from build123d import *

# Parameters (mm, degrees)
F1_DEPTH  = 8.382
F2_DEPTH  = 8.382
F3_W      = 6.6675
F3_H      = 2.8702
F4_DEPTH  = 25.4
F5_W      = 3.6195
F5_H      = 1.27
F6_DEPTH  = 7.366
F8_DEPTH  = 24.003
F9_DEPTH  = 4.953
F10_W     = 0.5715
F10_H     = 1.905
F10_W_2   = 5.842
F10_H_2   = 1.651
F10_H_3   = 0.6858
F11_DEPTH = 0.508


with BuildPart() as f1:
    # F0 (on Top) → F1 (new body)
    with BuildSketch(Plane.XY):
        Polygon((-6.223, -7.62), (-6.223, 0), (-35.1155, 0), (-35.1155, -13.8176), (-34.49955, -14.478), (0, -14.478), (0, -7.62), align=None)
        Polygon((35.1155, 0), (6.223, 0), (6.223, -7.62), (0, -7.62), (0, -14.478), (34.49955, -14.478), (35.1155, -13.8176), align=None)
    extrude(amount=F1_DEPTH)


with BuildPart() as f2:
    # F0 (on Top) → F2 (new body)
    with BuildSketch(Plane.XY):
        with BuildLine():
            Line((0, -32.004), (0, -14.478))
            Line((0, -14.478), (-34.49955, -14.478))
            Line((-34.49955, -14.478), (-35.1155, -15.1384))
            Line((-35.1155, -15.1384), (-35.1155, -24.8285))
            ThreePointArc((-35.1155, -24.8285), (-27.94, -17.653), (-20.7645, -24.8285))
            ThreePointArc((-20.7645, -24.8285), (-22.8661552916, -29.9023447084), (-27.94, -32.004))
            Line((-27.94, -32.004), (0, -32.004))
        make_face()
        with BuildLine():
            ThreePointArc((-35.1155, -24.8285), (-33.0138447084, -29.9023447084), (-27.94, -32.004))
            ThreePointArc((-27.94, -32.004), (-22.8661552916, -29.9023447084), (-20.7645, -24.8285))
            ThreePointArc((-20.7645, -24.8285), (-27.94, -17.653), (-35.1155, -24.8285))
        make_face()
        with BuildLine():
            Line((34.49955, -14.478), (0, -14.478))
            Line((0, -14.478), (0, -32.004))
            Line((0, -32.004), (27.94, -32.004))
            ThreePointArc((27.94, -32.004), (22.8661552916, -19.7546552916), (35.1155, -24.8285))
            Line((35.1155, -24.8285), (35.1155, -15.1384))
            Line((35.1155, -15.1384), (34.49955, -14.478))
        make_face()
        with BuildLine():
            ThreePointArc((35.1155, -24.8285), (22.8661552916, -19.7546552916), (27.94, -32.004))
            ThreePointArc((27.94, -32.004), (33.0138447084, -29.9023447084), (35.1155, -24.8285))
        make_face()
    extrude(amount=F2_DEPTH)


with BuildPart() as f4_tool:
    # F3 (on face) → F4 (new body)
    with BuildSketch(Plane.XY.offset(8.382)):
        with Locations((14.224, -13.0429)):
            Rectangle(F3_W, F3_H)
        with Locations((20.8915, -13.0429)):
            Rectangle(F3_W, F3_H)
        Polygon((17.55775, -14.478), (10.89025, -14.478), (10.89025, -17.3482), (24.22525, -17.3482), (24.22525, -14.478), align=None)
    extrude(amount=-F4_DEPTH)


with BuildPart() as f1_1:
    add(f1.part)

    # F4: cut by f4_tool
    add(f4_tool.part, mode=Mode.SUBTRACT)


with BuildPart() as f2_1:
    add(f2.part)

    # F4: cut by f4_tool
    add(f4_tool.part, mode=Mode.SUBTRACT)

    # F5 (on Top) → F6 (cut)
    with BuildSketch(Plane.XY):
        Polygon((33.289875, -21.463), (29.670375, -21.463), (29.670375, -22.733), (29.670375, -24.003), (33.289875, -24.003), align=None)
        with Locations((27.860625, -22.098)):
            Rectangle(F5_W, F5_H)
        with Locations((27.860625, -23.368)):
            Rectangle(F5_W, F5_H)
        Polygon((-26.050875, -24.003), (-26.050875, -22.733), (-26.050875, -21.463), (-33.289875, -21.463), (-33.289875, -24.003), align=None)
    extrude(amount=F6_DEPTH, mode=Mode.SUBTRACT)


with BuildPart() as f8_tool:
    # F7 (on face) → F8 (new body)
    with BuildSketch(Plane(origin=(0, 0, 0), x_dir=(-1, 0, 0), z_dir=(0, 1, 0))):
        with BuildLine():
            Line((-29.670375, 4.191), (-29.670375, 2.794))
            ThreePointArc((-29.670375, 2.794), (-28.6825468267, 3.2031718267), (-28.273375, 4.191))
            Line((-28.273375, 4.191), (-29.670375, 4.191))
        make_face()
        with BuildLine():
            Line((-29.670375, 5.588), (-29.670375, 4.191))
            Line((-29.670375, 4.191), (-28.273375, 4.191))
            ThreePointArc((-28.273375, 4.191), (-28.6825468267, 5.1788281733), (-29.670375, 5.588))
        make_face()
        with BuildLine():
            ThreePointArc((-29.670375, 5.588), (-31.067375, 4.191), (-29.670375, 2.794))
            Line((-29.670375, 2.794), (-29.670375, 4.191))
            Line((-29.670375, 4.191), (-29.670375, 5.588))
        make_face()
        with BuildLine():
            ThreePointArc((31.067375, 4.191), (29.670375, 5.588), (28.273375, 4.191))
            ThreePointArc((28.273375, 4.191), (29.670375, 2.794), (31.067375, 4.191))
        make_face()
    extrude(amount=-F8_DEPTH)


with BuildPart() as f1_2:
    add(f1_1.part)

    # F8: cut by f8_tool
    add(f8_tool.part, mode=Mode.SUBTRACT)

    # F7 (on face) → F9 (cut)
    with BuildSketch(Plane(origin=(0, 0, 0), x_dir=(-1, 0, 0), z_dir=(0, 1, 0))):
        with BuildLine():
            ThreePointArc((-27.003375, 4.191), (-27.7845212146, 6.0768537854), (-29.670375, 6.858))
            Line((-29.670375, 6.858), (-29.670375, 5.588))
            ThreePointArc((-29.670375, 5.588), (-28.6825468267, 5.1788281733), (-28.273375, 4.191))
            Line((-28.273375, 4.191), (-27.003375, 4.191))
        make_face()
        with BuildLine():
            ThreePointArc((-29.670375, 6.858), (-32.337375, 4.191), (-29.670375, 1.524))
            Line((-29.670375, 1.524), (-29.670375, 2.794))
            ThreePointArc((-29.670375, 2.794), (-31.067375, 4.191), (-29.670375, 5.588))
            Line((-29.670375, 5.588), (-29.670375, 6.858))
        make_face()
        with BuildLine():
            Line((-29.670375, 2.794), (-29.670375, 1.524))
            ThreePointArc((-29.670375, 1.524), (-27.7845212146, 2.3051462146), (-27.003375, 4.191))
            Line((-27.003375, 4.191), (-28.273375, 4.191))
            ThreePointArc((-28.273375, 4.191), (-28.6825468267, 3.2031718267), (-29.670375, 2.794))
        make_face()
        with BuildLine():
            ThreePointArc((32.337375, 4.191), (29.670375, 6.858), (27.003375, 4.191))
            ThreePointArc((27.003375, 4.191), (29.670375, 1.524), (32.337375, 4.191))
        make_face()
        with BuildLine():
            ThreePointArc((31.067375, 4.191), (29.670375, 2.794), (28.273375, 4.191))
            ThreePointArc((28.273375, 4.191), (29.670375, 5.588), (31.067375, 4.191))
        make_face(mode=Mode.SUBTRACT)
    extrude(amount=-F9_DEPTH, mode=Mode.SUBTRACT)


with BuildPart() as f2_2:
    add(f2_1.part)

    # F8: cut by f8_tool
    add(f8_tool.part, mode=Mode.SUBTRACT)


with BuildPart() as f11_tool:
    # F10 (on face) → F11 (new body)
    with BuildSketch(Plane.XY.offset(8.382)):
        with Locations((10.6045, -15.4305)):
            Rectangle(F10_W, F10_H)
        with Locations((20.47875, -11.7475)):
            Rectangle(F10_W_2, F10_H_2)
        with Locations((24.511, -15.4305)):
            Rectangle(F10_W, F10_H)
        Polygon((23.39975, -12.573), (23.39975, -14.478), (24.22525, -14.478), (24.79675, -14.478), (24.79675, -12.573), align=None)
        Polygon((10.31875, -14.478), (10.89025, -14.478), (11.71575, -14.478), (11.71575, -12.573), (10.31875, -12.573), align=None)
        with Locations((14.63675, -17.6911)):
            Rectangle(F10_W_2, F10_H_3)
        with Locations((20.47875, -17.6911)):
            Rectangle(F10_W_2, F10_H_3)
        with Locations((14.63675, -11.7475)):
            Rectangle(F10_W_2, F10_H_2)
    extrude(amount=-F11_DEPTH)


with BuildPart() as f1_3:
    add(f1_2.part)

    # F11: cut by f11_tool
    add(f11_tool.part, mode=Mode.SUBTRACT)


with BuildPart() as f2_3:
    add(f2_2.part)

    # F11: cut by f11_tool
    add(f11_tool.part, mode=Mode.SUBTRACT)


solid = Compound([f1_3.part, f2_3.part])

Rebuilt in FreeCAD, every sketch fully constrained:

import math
import FreeCAD as App
import Part
import Sketcher

V = App.Vector
Q = App.Units.Quantity

doc = App.newDocument("Part")
body = doc.addObject("PartDesign::Body", "Body")

sketch1 = body.newObject("Sketcher::SketchObject", "Sketch")
sketch1.AttachmentSupport = (doc.getObject("XY_Plane"), [""])
sketch1.MapMode = "FlatFace"
sketch1.addGeometry([
    Part.LineSegment(V(-6.223, -7.62, 0), V(-6.223, 0, 0)),
    Part.LineSegment(V(-6.223, 0, 0), V(-35.1155, 0, 0)),
    Part.LineSegment(V(-35.1155, 0, 0), V(-35.1155, -13.8176, 0)),
    Part.LineSegment(V(-35.1155, -13.8176, 0), V(-34.49955, -14.478, 0)),
    Part.LineSegment(V(-34.49955, -14.478, 0), V(34.49955, -14.478, 0)),
    Part.LineSegment(V(34.49955, -14.478, 0), V(35.1155, -13.8176, 0)),
    Part.LineSegment(V(35.1155, -13.8176, 0), V(35.1155, 0, 0)),
    Part.LineSegment(V(35.1155, 0, 0), V(6.223, 0, 0)),
    Part.LineSegment(V(6.223, 0, 0), V(6.223, -7.62, 0)),
    Part.LineSegment(V(6.223, -7.62, 0), V(-6.223, -7.62, 0)),
], False)
sketch1.addConstraint([
    Sketcher.Constraint("Coincident", 0, 2, 1, 1),
    Sketcher.Constraint("Coincident", 1, 2, 2, 1),
    Sketcher.Constraint("Coincident", 2, 2, 3, 1),
    Sketcher.Constraint("Coincident", 3, 2, 4, 1),
    Sketcher.Constraint("Coincident", 4, 2, 5, 1),
    Sketcher.Constraint("Coincident", 5, 2, 6, 1),
    Sketcher.Constraint("Coincident", 6, 2, 7, 1),
    Sketcher.Constraint("Coincident", 7, 2, 8, 1),
    Sketcher.Constraint("Coincident", 8, 2, 9, 1),
    Sketcher.Constraint("Coincident", 9, 2, 0, 1),
    Sketcher.Constraint("Vertical", 0),
    Sketcher.Constraint("Horizontal", 1),
    Sketcher.Constraint("Vertical", 2),
    Sketcher.Constraint("Horizontal", 4),
    Sketcher.Constraint("Vertical", 6),
    Sketcher.Constraint("Horizontal", 7),
    Sketcher.Constraint("Vertical", 8),
    Sketcher.Constraint("Horizontal", 9),
    Sketcher.Constraint("Symmetric", 1, 2, 6, 2, -1, 1),
    Sketcher.Constraint("Symmetric", 0, 2, 7, 2, -2),
    Sketcher.Constraint("Horizontal", 2, 2, 5, 2),
    Sketcher.Constraint("Equal", 3, 5),
    Sketcher.Constraint("DistanceY", 0, 1, 0, 2, Q("0.3 in")),
    Sketcher.Constraint("DistanceX", 9, 2, 9, 1, Q("0.49 in")),
    Sketcher.Constraint("DistanceY", 2, 2, 2, 1, Q("0.544 in")),
    Sketcher.Constraint("DistanceY", 3, 2, -1, 1, Q("0.57 in")),
    Sketcher.Constraint("DistanceX", 1, 2, 1, 1, Q("1.1375 in")),
    Sketcher.Constraint("DistanceX", 4, 1, 4, 2, Q("2.7165 in")),
])
pad1 = body.newObject("PartDesign::Pad", "Pad")
pad1.Profile = sketch1
pad1.Length = Q("0.33 in")
body2 = doc.addObject("PartDesign::Body", "Body001")

sketch2 = body2.newObject("Sketcher::SketchObject", "Sketch001")
sketch2.AttachmentSupport = (doc.getObject("XY_Plane001"), [""])
sketch2.MapMode = "FlatFace"
sketch2.addGeometry([
    Part.LineSegment(V(-34.49955, -14.478, 0), V(-35.1155, -15.1384, 0)),
    Part.LineSegment(V(-35.1155, -15.1384, 0), V(-35.1155, -24.8285, 0)),
    Part.ArcOfCircle(Part.Circle(V(-27.94, -24.8285, 0), V(0, 0, 1), 7.1755), math.radians(180), math.radians(270)),
    Part.LineSegment(V(-27.94, -32.004, 0), V(27.94, -32.004, 0)),
    Part.ArcOfCircle(Part.Circle(V(27.94, -24.8285, 0), V(0, 0, 1), 7.1755), math.radians(-90), math.radians(0)),
    Part.LineSegment(V(35.1155, -24.8285, 0), V(35.1155, -15.1384, 0)),
    Part.LineSegment(V(35.1155, -15.1384, 0), V(34.49955, -14.478, 0)),
    Part.LineSegment(V(34.49955, -14.478, 0), V(-34.49955, -14.478, 0)),
], False)
sketch2.addConstraint([
    Sketcher.Constraint("Coincident", 0, 2, 1, 1),
    Sketcher.Constraint("Tangent", 1, 2, 2, 1),
    Sketcher.Constraint("Tangent", 2, 2, 3, 1),
    Sketcher.Constraint("Tangent", 3, 2, 4, 1),
    Sketcher.Constraint("Tangent", 4, 2, 5, 1),
    Sketcher.Constraint("Coincident", 5, 2, 6, 1),
    Sketcher.Constraint("Coincident", 6, 2, 7, 1),
    Sketcher.Constraint("Coincident", 7, 2, 0, 1),
    Sketcher.Constraint("Vertical", 1),
    Sketcher.Constraint("Horizontal", 3),
    Sketcher.Constraint("Vertical", 5),
    Sketcher.Constraint("Horizontal", 7),
    Sketcher.Constraint("Equal", 2, 4),
    Sketcher.Constraint("Symmetric", 0, 2, 5, 2, -2),
    Sketcher.Constraint("Equal", 0, 6),
    Sketcher.Constraint("DistanceX", 3, 1, 3, 2, Q("2.2 in")),
    Sketcher.Constraint("Radius", 2, Q("0.2825 in")),
    Sketcher.Constraint("DistanceY", 2, 2, -1, 1, Q("1.26 in")),
    Sketcher.Constraint("DistanceY", 6, 2, -1, 1, Q("0.57 in")),
    Sketcher.Constraint("DistanceX", 7, 2, 7, 1, Q("2.7165 in")),
    Sketcher.Constraint("DistanceY", 1, 2, 1, 1, Q("0.3815 in")),
])
pad2 = body2.newObject("PartDesign::Pad", "Pad001")
pad2.Profile = sketch2
pad2.Length = Q("0.33 in")
body3 = doc.addObject("PartDesign::Body", "Body002")

sketch3 = body3.newObject("Sketcher::SketchObject", "Sketch002")
sketch3.AttachmentSupport = (doc.getObject("XY_Plane002"), [""])
sketch3.MapMode = "FlatFace"
sketch3.AttachmentOffset = App.Placement(V(0, 0, 0.33 * 25.4), App.Rotation())
sketch3.addGeometry([
    Part.LineSegment(V(10.89025, -11.6078, 0), V(10.89025, -17.3482, 0)),
    Part.LineSegment(V(10.89025, -17.3482, 0), V(24.22525, -17.3482, 0)),
    Part.LineSegment(V(24.22525, -17.3482, 0), V(24.22525, -11.6078, 0)),
    Part.LineSegment(V(24.22525, -11.6078, 0), V(10.89025, -11.6078, 0)),
], False)
sketch3.addConstraint([
    Sketcher.Constraint("Coincident", 0, 2, 1, 1),
    Sketcher.Constraint("Coincident", 1, 2, 2, 1),
    Sketcher.Constraint("Coincident", 2, 2, 3, 1),
    Sketcher.Constraint("Coincident", 3, 2, 0, 1),
    Sketcher.Constraint("Vertical", 0),
    Sketcher.Constraint("Horizontal", 1),
    Sketcher.Constraint("Vertical", 2),
    Sketcher.Constraint("Horizontal", 3),
    Sketcher.Constraint("DistanceX", 1, 1, 1, 2, Q("0.525 in")),
    Sketcher.Constraint("DistanceY", 0, 2, 0, 1, Q("0.226 in")),
    Sketcher.Constraint("DistanceY", 0, 2, -1, 1, Q("0.683 in")),
    Sketcher.Constraint("DistanceX", -1, 1, 0, 2, 10.89025),
])
pad3 = body3.newObject("PartDesign::Pad", "Pad002")
pad3.Profile = sketch3
pad3.Length = Q("1 in")
pad3.Reversed = True
doc.recompute()

body4 = doc.addObject("PartDesign::Body", "Body003")
body4.BaseFeature = body3
boolean = body.newObject("PartDesign::Boolean", "Boolean")
boolean.Type = "Cut"
boolean.addObjects([body4])
doc.recompute()

boolean2 = body2.newObject("PartDesign::Boolean", "Boolean001")
boolean2.Type = "Cut"
boolean2.addObjects([body3])

sketch4 = body2.newObject("Sketcher::SketchObject", "Sketch003")
sketch4.AttachmentSupport = (doc.getObject("XY_Plane001"), [""])
sketch4.MapMode = "FlatFace"
sketch4.addGeometry([
    Part.LineSegment(V(33.289875, -21.463, 0), V(26.050875, -21.463, 0)),
    Part.LineSegment(V(26.050875, -21.463, 0), V(26.050875, -24.003, 0)),
    Part.LineSegment(V(26.050875, -24.003, 0), V(33.289875, -24.003, 0)),
    Part.LineSegment(V(33.289875, -24.003, 0), V(33.289875, -21.463, 0)),
    Part.LineSegment(V(-26.050875, -24.003, 0), V(-26.050875, -21.463, 0)),
    Part.LineSegment(V(-26.050875, -21.463, 0), V(-33.289875, -21.463, 0)),
    Part.LineSegment(V(-33.289875, -21.463, 0), V(-33.289875, -24.003, 0)),
    Part.LineSegment(V(-33.289875, -24.003, 0), V(-26.050875, -24.003, 0)),
], False)
sketch4.addConstraint([
    Sketcher.Constraint("Coincident", 0, 2, 1, 1),
    Sketcher.Constraint("Coincident", 1, 2, 2, 1),
    Sketcher.Constraint("Coincident", 2, 2, 3, 1),
    Sketcher.Constraint("Coincident", 3, 2, 0, 1),
    Sketcher.Constraint("Coincident", 4, 2, 5, 1),
    Sketcher.Constraint("Coincident", 5, 2, 6, 1),
    Sketcher.Constraint("Coincident", 6, 2, 7, 1),
    Sketcher.Constraint("Coincident", 7, 2, 4, 1),
    Sketcher.Constraint("Horizontal", 0),
    Sketcher.Constraint("Vertical", 1),
    Sketcher.Constraint("Horizontal", 2),
    Sketcher.Constraint("Vertical", 3),
    Sketcher.Constraint("Vertical", 4),
    Sketcher.Constraint("Horizontal", 5),
    Sketcher.Constraint("Vertical", 6),
    Sketcher.Constraint("Horizontal", 7),
    Sketcher.Constraint("Symmetric", 0, 2, 4, 2, -2),
    Sketcher.Constraint("Symmetric", 2, 2, 6, 2, -2),
    Sketcher.Constraint("DistanceY", 1, 2, 1, 1, Q("0.1 in")),
    Sketcher.Constraint("DistanceX", 0, 2, 0, 1, Q("0.285 in")),
    Sketcher.Constraint("DistanceY", 0, 2, -1, 1, Q("0.845 in")),
    Sketcher.Constraint("DistanceX", 4, 2, 0, 2, 52.10175),
])
pocket1 = body2.newObject("PartDesign::Pocket", "Pocket")
pocket1.Profile = sketch4
pocket1.Length = Q("0.29 in")
pocket1.Reversed = True
body5 = doc.addObject("PartDesign::Body", "Body004")
body5.AllowCompound = True

sketch5 = body5.newObject("Sketcher::SketchObject", "Sketch004")
sketch5.AttachmentSupport = (doc.getObject("XZ_Plane004"), [""])
sketch5.MapMode = "FlatFace"
sketch5.addGeometry([
    Part.ArcOfCircle(Part.Circle(V(29.670375, 4.191, 0), V(0, 0, 1), 1.397), math.radians(180), math.radians(270)),
    Part.ArcOfCircle(Part.Circle(V(29.670375, 4.191, 0), V(0, 0, 1), 1.397), math.radians(90), math.radians(180)),
    Part.ArcOfCircle(Part.Circle(V(29.670375, 4.191, 0), V(0, 0, 1), 1.397), math.radians(-90), math.radians(90)),
    Part.Circle(V(-29.670375, 4.191, 0), V(0, 0, 1), 1.397),
], False)
sketch5.addConstraint([
    Sketcher.Constraint("Tangent", 0, 1, 1, 2),
    Sketcher.Constraint("Tangent", 1, 1, 2, 2),
    Sketcher.Constraint("Tangent", 2, 1, 0, 2),
    Sketcher.Constraint("Equal", 2, 3),
    Sketcher.Constraint("Symmetric", 0, 3, 3, 3, -2),
    Sketcher.Constraint("Horizontal", 3, 3, 0, 1),
    Sketcher.Constraint("Vertical", 2, 3, 1, 1),
    Sketcher.Constraint("Vertical", 1, 1, 2, 1),
    Sketcher.Constraint("Diameter", 3, Q("0.11 in")),
    Sketcher.Constraint("DistanceY", -1, 1, 1, 1, Q("0.22 in")),
    Sketcher.Constraint("DistanceX", 3, 3, 0, 1, Q("2.28125 in")),
])
pad4 = body5.newObject("PartDesign::Pad", "Pad003")
pad4.Profile = sketch5
pad4.Length = Q("0.945 in")
doc.recompute()

body6 = doc.addObject("PartDesign::Body", "Body005")
body6.BaseFeature = body5
boolean3 = body.newObject("PartDesign::Boolean", "Boolean002")
boolean3.Type = "Cut"
boolean3.addObjects([body6])
doc.recompute()

sketch6 = body.newObject("Sketcher::SketchObject", "Sketch005")
sketch6.AttachmentSupport = (doc.getObject("XZ_Plane"), [""])
sketch6.MapMode = "FlatFace"
sketch6.addGeometry([
    Part.ArcOfCircle(Part.Circle(V(29.670375, 4.191, 0), V(0, 0, 1), 2.667), math.radians(90), math.radians(180)),
    Part.ArcOfCircle(Part.Circle(V(29.670375, 4.191, 0), V(0, 0, 1), 2.667), math.radians(-90), math.radians(90)),
    Part.ArcOfCircle(Part.Circle(V(29.670375, 4.191, 0), V(0, 0, 1), 2.667), math.radians(180), math.radians(270)),
    Part.ArcOfCircle(Part.Circle(V(29.670375, 4.191, 0), V(0, 0, 1), 1.397), math.radians(-90), math.radians(90)),
    Part.ArcOfCircle(Part.Circle(V(29.670375, 4.191, 0), V(0, 0, 1), 1.397), math.radians(90), math.radians(180)),
    Part.ArcOfCircle(Part.Circle(V(29.670375, 4.191, 0), V(0, 0, 1), 1.397), math.radians(180), math.radians(270)),
    Part.Circle(V(-29.670375, 4.191, 0), V(0, 0, 1), 2.667),
    Part.Circle(V(-29.670375, 4.191, 0), V(0, 0, 1), 1.397),
], False)
sketch6.addConstraint([
    Sketcher.Constraint("Tangent", 0, 1, 1, 2),
    Sketcher.Constraint("Tangent", 1, 1, 2, 2),
    Sketcher.Constraint("Tangent", 2, 1, 0, 2),
    Sketcher.Constraint("Tangent", 3, 2, 4, 1),
    Sketcher.Constraint("Tangent", 4, 2, 5, 1),
    Sketcher.Constraint("Tangent", 5, 2, 3, 1),
    Sketcher.Constraint("Coincident", 3, 3, 0, 3),
    Sketcher.Constraint("Coincident", 7, 3, 6, 3),
    Sketcher.Constraint("Equal", 2, 6),
    Sketcher.Constraint("Equal", 5, 7),
    Sketcher.Constraint("Symmetric", 0, 3, 6, 3, -2),
    Sketcher.Constraint("Horizontal", 7, 3, 2, 1),
    Sketcher.Constraint("Horizontal", 2, 1, 4, 2),
    Sketcher.Constraint("Vertical", 5, 3, 0, 1),
    Sketcher.Constraint("Vertical", 0, 1, 1, 1),
    Sketcher.Constraint("Vertical", 1, 1, 3, 2),
    Sketcher.Constraint("Vertical", 3, 2, 5, 2),
    Sketcher.Constraint("Diameter", 6, Q("0.21 in")),
    Sketcher.Constraint("Diameter", 7, Q("0.11 in")),
    Sketcher.Constraint("DistanceY", -1, 1, 0, 1, Q("0.27 in")),
    Sketcher.Constraint("DistanceX", 6, 3, 0, 3, 59.34075),
])
pocket2 = body.newObject("PartDesign::Pocket", "Pocket001")
pocket2.Profile = sketch6
pocket2.Length = Q("0.195 in")
pocket2.Reversed = True
doc.recompute()

boolean4 = body2.newObject("PartDesign::Boolean", "Boolean003")
boolean4.Type = "Cut"
boolean4.addObjects([body5])
body7 = doc.addObject("PartDesign::Body", "Body006")
body7.AllowCompound = True

sketch7 = body7.newObject("Sketcher::SketchObject", "Sketch006")
sketch7.AttachmentSupport = (doc.getObject("XY_Plane006"), [""])
sketch7.MapMode = "FlatFace"
sketch7.AttachmentOffset = App.Placement(V(0, 0, 0.33 * 25.4), App.Rotation())
sketch7.addGeometry([
    Part.LineSegment(V(10.31875, -16.383, 0), V(10.89025, -16.383, 0)),
    Part.LineSegment(V(10.89025, -16.383, 0), V(10.89025, -14.478, 0)),
    Part.LineSegment(V(10.89025, -14.478, 0), V(11.71575, -14.478, 0)),
    Part.LineSegment(V(11.71575, -14.478, 0), V(11.71575, -12.573, 0)),
    Part.LineSegment(V(11.71575, -12.573, 0), V(10.31875, -12.573, 0)),
    Part.LineSegment(V(10.31875, -12.573, 0), V(10.31875, -16.383, 0)),
    Part.LineSegment(V(23.39975, -12.573, 0), V(23.39975, -10.922, 0)),
    Part.LineSegment(V(23.39975, -10.922, 0), V(11.71575, -10.922, 0)),
    Part.LineSegment(V(11.71575, -10.922, 0), V(11.71575, -12.573, 0)),
    Part.LineSegment(V(11.71575, -12.573, 0), V(23.39975, -12.573, 0)),
    Part.LineSegment(V(24.22525, -14.478, 0), V(24.22525, -16.383, 0)),
    Part.LineSegment(V(24.22525, -16.383, 0), V(24.79675, -16.383, 0)),
    Part.LineSegment(V(24.79675, -16.383, 0), V(24.79675, -12.573, 0)),
    Part.LineSegment(V(24.79675, -12.573, 0), V(23.39975, -12.573, 0)),
    Part.LineSegment(V(23.39975, -12.573, 0), V(23.39975, -14.478, 0)),
    Part.LineSegment(V(23.39975, -14.478, 0), V(24.22525, -14.478, 0)),
    Part.LineSegment(V(11.71575, -17.3482, 0), V(11.71575, -18.034, 0)),
    Part.LineSegment(V(11.71575, -18.034, 0), V(23.39975, -18.034, 0)),
    Part.LineSegment(V(23.39975, -18.034, 0), V(23.39975, -17.3482, 0)),
    Part.LineSegment(V(23.39975, -17.3482, 0), V(11.71575, -17.3482, 0)),
], False)
sketch7.addConstraint([
    Sketcher.Constraint("Coincident", 0, 2, 1, 1),
    Sketcher.Constraint("Coincident", 1, 2, 2, 1),
    Sketcher.Constraint("Coincident", 2, 2, 3, 1),
    Sketcher.Constraint("Coincident", 3, 2, 4, 1),
    Sketcher.Constraint("Coincident", 4, 2, 5, 1),
    Sketcher.Constraint("Coincident", 5, 2, 0, 1),
    Sketcher.Constraint("Coincident", 6, 2, 7, 1),
    Sketcher.Constraint("Coincident", 7, 2, 8, 1),
    Sketcher.Constraint("Coincident", 8, 2, 9, 1),
    Sketcher.Constraint("Coincident", 9, 2, 6, 1),
    Sketcher.Constraint("Coincident", 10, 2, 11, 1),
    Sketcher.Constraint("Coincident", 11, 2, 12, 1),
    Sketcher.Constraint("Coincident", 12, 2, 13, 1),
    Sketcher.Constraint("Coincident", 13, 2, 14, 1),
    Sketcher.Constraint("Coincident", 14, 2, 15, 1),
    Sketcher.Constraint("Coincident", 15, 2, 10, 1),
    Sketcher.Constraint("Coincident", 16, 2, 17, 1),
    Sketcher.Constraint("Coincident", 17, 2, 18, 1),
    Sketcher.Constraint("Coincident", 18, 2, 19, 1),
    Sketcher.Constraint("Coincident", 19, 2, 16, 1),
    Sketcher.Constraint("Horizontal", 0),
    Sketcher.Constraint("Vertical", 1),
    Sketcher.Constraint("Horizontal", 2),
    Sketcher.Constraint("Vertical", 3),
    Sketcher.Constraint("Horizontal", 4),
    Sketcher.Constraint("Vertical", 5),
    Sketcher.Constraint("Vertical", 6),
    Sketcher.Constraint("Horizontal", 7),
    Sketcher.Constraint("Vertical", 8),
    Sketcher.Constraint("Horizontal", 9),
    Sketcher.Constraint("Vertical", 10),
    Sketcher.Constraint("Horizontal", 11),
    Sketcher.Constraint("Vertical", 12),
    Sketcher.Constraint("Horizontal", 13),
    Sketcher.Constraint("Vertical", 14),
    Sketcher.Constraint("Horizontal", 15),
    Sketcher.Constraint("Vertical", 16),
    Sketcher.Constraint("Horizontal", 17),
    Sketcher.Constraint("Vertical", 18),
    Sketcher.Constraint("Horizontal", 19),
    Sketcher.Constraint("Coincident", 8, 2, 3, 2),
    Sketcher.Constraint("Coincident", 13, 2, 9, 2),
    Sketcher.Constraint("Horizontal", 5, 2, 10, 2),
    Sketcher.Constraint("Horizontal", 2, 2, 14, 2),
    Sketcher.Constraint("Vertical", 8, 2, 16, 2),
    Sketcher.Constraint("Vertical", 14, 2, 17, 2),
    Sketcher.Constraint("Equal", 0, 11),
    Sketcher.Constraint("Equal", 4, 13),
    Sketcher.Constraint("Equal", 1, 3),
    Sketcher.Constraint("DistanceX", 7, 2, 7, 1, Q("0.46 in")),
    Sketcher.Constraint("DistanceY", 5, 2, 5, 1, Q("0.15 in")),
    Sketcher.Constraint("DistanceX", 4, 2, 4, 1, Q("0.055 in")),
    Sketcher.Constraint("DistanceY", 6, 1, 6, 2, Q("0.065 in")),
    Sketcher.Constraint("DistanceY", 16, 2, 16, 1, Q("0.027 in")),
    Sketcher.Constraint("DistanceY", 1, 2, -1, 1, Q("0.57 in")),
    Sketcher.Constraint("DistanceY", 16, 2, -1, 1, Q("0.71 in")),
    Sketcher.Constraint("DistanceX", 0, 1, 0, 2, Q("0.0225 in")),
    Sketcher.Constraint("DistanceX", -1, 1, 4, 2, Q("0.40625 in")),
])
pad5 = body7.newObject("PartDesign::Pad", "Pad004")
pad5.Profile = sketch7
pad5.Length = Q("0.02 in")
pad5.Reversed = True
doc.recompute()

body8 = doc.addObject("PartDesign::Body", "Body007")
body8.BaseFeature = body7
boolean5 = body.newObject("PartDesign::Boolean", "Boolean004")
boolean5.Type = "Cut"
boolean5.addObjects([body8])
doc.recompute()

boolean6 = body2.newObject("PartDesign::Boolean", "Boolean005")
boolean6.Type = "Cut"
boolean6.addObjects([body7])

doc.recompute()
